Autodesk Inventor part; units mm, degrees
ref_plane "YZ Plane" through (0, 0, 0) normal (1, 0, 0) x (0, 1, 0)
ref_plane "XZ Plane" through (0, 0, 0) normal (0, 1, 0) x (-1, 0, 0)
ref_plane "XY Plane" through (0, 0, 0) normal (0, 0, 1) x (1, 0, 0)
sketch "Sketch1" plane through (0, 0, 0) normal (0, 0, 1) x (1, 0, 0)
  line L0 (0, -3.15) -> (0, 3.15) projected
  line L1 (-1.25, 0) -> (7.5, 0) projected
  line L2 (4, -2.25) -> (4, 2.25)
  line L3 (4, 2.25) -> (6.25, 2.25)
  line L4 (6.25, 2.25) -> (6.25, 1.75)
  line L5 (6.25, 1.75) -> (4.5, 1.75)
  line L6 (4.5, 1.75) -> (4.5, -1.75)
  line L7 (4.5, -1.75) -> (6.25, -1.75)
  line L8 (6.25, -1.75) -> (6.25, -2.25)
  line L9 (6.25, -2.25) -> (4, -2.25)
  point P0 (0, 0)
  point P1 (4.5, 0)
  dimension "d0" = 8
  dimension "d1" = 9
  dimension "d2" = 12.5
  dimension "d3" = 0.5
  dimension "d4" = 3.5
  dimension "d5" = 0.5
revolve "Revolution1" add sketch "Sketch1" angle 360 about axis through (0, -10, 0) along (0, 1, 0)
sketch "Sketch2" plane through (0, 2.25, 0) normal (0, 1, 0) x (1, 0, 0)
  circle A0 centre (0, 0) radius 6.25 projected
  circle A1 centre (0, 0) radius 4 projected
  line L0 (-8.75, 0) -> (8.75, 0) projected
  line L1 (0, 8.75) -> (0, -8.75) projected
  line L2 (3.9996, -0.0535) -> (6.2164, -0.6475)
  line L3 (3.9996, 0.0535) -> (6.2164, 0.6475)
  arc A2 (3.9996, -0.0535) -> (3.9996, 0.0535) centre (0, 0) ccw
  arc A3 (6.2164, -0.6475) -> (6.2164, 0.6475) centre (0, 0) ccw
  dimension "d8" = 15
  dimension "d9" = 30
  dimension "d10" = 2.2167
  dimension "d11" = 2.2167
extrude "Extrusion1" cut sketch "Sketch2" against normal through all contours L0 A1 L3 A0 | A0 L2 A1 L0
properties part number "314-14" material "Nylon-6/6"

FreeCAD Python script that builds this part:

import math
import FreeCAD as App
import Part
import Sketcher
Q = App.Units.Quantity


def add_polygon(sketch, points):
    """Adds a closed chain of lines whose ends are joined by coincident constraints."""
    first, n = sketch.GeometryCount, len(points)
    for a, b in zip(points, points[1:] + points[:1]):
        sketch.addGeometry(Part.LineSegment(App.Vector(*a, 0), App.Vector(*b, 0)), False)
    for i in range(n):
        sketch.addConstraint(Sketcher.Constraint("Coincident", first + i, 2, first + (i + 1) % n, 1))

doc = App.newDocument("Part")
body = doc.addObject("PartDesign::Body", "Body")

# Sketch on XY plane
sketch1 = doc.addObject("Sketcher::SketchObject", "Sketch")
body.addObject(sketch1)
sketch1.AttachmentSupport = (doc.XY_Plane, [""])
sketch1.MapMode = "FlatFace"
add_polygon(sketch1, [(4, 2.2), (4, -2.2), (6.2, -2.2), (6.2, -1.8), (4.5, -1.8), (4.5, 1.8), (6.2, 1.8), (6.2, 2.2)])  # lines 0-7
sketch1.addConstraint([
    Sketcher.Constraint("Vertical", 0),
    Sketcher.Constraint("Horizontal", 1),
    Sketcher.Constraint("Vertical", 2),
    Sketcher.Constraint("Horizontal", 3),
    Sketcher.Constraint("Vertical", 4),
    Sketcher.Constraint("Horizontal", 5),
    Sketcher.Constraint("Vertical", 6),
    Sketcher.Constraint("Horizontal", 7),
    Sketcher.Constraint("Symmetric", 2, 2, 5, 2, -1),
    Sketcher.Constraint("Equal", 2, 6),
    Sketcher.Constraint("DistanceY", 2, 1, 2, 2, 0.5),
    Sketcher.Constraint("DistanceY", 4, 1, 4, 2, 3.5),
    Sketcher.Constraint("DistanceX", 0, 2, 3, 2, 0.5),
    Sketcher.Constraint("DistanceX", -1, 1, 0, 2, 4.0),
    Sketcher.Constraint("DistanceX", 1, 1, 1, 2, 2.25),
])
revolution = doc.addObject("PartDesign::Revolution", "Revolution")
body.addObject(revolution)
revolution.Profile = sketch1
revolution.ReferenceAxis = (sketch1, ["V_Axis"])
revolution.Angle = 360

# Sketch on XZ plane
sketch2 = doc.addObject("Sketcher::SketchObject", "Sketch001")
body.addObject(sketch2)
sketch2.AttachmentSupport = (doc.XZ_Plane, [""])
sketch2.MapMode = "FlatFace"
sketch2.AttachmentOffset = App.Placement(App.Vector(0, 0, -2.25), App.Rotation())
sketch2.addGeometry([
    Part.ArcOfCircle(Part.Circle(App.Vector(0, 0, 0), App.Vector(0, 0, 1), 4), math.radians(-0.77), math.radians(0.77)),
    Part.LineSegment(App.Vector(4, 0.05, 0), App.Vector(6.22, 0.65, 0)),
    Part.ArcOfCircle(Part.Circle(App.Vector(0, 0, 0), App.Vector(0, 0, 1), 6.25), math.radians(-5.95), math.radians(5.95)),
    Part.LineSegment(App.Vector(6.22, -0.65, 0), App.Vector(4, -0.05, 0)),
], False)
sketch2.addConstraint([
    Sketcher.Constraint("Coincident", 0, 2, 1, 1),
    Sketcher.Constraint("Coincident", 1, 2, 2, 2),
    Sketcher.Constraint("Coincident", 2, 1, 3, 1),
    Sketcher.Constraint("Coincident", 3, 2, 0, 1),
    Sketcher.Constraint("Coincident", 0, 3, -1, 1),
    Sketcher.Constraint("Coincident", 2, 3, -1, 1),
    Sketcher.Constraint("Vertical", 1, 2, 2, 1),
    Sketcher.Constraint("Vertical", 0, 2, 3, 2),
    Sketcher.Constraint("Angle", 1, Q("15.0002 deg")),
    Sketcher.Constraint("Radius", 0, 4.0),
    Sketcher.Constraint("Radius", 2, 6.25),
    Sketcher.Constraint("DistanceX", 0, 2, 1, 2, 2.2168),
])
pocket1 = doc.addObject("PartDesign::Pocket", "Pocket")
body.addObject(pocket1)
pocket1.Profile = sketch2
pocket1.Type = "ThroughAll"
pocket1.Reversed = True

doc.recompute()
